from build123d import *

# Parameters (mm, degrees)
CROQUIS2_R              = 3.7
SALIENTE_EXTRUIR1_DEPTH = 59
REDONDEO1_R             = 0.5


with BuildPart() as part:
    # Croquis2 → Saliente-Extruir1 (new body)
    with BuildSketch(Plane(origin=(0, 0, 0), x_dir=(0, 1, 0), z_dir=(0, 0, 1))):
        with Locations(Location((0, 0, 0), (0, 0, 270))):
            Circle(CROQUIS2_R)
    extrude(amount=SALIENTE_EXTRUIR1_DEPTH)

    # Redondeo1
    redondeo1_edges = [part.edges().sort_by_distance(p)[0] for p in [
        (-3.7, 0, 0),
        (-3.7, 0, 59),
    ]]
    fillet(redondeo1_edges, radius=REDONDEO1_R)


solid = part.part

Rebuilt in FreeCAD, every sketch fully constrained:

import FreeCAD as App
import Part
import Sketcher
from FreeCAD import Vector
Q = App.Units.Quantity


def edges_at(feature, points):
    """Names of the edges that pass closest to the given points."""
    edges = feature.Shape.Edges
    near = lambda p: min(range(len(edges)), key=lambda i: edges[i].distToShape(Part.Vertex(*p))[0])
    return sorted({f"Edge{near(p) + 1}" for p in points})

doc = App.newDocument("Part")
body = doc.addObject("PartDesign::Body", "Body")

# Sketch on XY plane
sketch1 = doc.addObject("Sketcher::SketchObject", "Sketch")
body.addObject(sketch1)
sketch1.AttachmentSupport = (doc.XY_Plane, [""])
sketch1.MapMode = "FlatFace"
sketch1.addGeometry(Part.Circle(Vector(0, 0, 0), Vector(0, 0, 1), 3.7), False)
sketch1.addConstraint([
    Sketcher.Constraint("Coincident", 0, 3, -1, 1),
    Sketcher.Constraint("Diameter", 0, Q("7.4 mm")),
])
pad1 = doc.addObject("PartDesign::Pad", "Pad")
body.addObject(pad1)
pad1.Profile = sketch1
pad1.Length = 59
doc.recompute()

fillet = doc.addObject("PartDesign::Fillet", "Fillet")
body.addObject(fillet)
fillet.Base = (pad1, edges_at(pad1, [(-3.7, 0, 0), (-3.7, 0, 59)]))
fillet.Radius = 0.5

doc.recompute()
